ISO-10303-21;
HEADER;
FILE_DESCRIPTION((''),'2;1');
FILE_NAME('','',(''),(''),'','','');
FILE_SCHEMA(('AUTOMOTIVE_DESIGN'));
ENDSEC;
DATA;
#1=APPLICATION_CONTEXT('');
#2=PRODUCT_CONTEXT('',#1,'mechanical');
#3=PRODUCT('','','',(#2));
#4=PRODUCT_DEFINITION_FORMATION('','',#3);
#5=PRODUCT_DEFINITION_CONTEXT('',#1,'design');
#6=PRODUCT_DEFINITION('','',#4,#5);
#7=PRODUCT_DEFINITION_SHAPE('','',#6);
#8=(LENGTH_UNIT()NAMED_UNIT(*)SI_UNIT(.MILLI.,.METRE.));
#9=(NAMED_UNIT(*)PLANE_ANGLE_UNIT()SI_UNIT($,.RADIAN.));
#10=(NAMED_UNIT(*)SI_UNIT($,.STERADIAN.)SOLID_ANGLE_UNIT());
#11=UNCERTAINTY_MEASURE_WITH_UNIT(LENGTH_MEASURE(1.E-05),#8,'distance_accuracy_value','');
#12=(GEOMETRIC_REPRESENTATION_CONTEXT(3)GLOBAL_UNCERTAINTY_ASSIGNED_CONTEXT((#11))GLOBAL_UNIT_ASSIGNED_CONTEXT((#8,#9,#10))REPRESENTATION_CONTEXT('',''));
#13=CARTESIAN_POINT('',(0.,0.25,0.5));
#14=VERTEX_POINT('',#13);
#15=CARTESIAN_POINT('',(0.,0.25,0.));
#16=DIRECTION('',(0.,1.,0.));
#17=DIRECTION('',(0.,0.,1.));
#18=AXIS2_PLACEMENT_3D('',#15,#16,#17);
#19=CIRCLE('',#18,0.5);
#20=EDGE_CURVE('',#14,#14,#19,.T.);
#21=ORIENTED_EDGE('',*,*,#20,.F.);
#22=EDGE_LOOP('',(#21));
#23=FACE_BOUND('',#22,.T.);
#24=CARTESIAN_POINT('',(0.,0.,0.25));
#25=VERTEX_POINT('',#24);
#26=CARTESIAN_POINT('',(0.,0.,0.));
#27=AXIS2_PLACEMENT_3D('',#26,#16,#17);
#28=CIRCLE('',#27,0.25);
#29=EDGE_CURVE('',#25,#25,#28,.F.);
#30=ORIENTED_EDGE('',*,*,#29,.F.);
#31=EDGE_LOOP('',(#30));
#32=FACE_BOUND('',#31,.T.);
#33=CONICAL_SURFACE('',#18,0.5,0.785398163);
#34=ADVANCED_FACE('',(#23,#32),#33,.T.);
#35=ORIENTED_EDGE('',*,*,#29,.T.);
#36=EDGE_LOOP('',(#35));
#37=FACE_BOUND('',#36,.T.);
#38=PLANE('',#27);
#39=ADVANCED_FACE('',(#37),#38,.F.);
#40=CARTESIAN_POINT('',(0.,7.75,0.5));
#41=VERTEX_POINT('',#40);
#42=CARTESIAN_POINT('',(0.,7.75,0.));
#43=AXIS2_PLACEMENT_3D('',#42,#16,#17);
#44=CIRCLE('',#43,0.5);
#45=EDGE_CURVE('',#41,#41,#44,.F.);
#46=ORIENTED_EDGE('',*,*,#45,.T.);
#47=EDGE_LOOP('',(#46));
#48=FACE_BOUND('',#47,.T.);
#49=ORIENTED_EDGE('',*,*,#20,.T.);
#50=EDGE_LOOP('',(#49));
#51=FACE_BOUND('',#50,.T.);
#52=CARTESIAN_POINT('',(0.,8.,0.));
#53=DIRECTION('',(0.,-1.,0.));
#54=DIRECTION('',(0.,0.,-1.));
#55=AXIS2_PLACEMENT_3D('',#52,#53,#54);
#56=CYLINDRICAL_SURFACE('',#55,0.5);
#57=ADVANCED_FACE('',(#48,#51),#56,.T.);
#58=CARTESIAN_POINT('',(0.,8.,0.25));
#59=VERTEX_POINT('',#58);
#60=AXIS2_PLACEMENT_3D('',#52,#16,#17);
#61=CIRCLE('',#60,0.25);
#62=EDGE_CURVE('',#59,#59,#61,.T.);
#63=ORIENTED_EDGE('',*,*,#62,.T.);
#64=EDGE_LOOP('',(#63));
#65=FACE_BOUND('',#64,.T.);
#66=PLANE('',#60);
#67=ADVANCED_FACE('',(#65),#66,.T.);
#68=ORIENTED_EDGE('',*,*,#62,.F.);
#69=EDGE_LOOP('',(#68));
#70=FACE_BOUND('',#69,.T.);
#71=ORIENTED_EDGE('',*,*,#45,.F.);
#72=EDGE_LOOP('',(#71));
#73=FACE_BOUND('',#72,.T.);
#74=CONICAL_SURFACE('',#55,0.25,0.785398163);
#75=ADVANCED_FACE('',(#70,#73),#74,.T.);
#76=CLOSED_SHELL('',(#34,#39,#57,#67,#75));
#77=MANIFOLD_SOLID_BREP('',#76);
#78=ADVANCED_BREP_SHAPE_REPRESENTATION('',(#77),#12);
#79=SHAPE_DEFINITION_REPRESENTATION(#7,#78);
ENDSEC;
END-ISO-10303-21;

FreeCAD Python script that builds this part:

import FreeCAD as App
import Part
import Sketcher
Q = App.Units.Quantity


def edges_at(feature, points):
    """Names of the edges that pass closest to the given points."""
    edges = feature.Shape.Edges
    near = lambda p: min(range(len(edges)), key=lambda i: edges[i].distToShape(Part.Vertex(*p))[0])
    return sorted({f"Edge{near(p) + 1}" for p in points})

doc = App.newDocument("Part")
body = doc.addObject("PartDesign::Body", "Body")

# Sketch on XZ plane
sketch1 = body.newObject("Sketcher::SketchObject", "Sketch")
sketch1.AttachmentSupport = (doc.getObject("XZ_Plane"), [""])
sketch1.MapMode = "FlatFace"
sketch1.addGeometry(Part.Circle(App.Vector(0, 0, 0), App.Vector(0, 0, 1), 0.5), False)
sketch1.addConstraint(Sketcher.Constraint("Coincident", 0, 3, -1, 1))
sketch1.addConstraint(Sketcher.Constraint("Diameter", 0, Q("1 mm")))
pad1 = body.newObject("PartDesign::Pad", "Pad")
pad1.Profile = sketch1
pad1.Length = 8
pad1.Reversed = True
doc.recompute()

chamfer = body.newObject("PartDesign::Chamfer", "Chamfer")
chamfer.Base = (pad1, edges_at(pad1, [(-0.5, 0, 0), (-0.5, 8, 0)]))
chamfer.Size = 0.25

doc.recompute()
